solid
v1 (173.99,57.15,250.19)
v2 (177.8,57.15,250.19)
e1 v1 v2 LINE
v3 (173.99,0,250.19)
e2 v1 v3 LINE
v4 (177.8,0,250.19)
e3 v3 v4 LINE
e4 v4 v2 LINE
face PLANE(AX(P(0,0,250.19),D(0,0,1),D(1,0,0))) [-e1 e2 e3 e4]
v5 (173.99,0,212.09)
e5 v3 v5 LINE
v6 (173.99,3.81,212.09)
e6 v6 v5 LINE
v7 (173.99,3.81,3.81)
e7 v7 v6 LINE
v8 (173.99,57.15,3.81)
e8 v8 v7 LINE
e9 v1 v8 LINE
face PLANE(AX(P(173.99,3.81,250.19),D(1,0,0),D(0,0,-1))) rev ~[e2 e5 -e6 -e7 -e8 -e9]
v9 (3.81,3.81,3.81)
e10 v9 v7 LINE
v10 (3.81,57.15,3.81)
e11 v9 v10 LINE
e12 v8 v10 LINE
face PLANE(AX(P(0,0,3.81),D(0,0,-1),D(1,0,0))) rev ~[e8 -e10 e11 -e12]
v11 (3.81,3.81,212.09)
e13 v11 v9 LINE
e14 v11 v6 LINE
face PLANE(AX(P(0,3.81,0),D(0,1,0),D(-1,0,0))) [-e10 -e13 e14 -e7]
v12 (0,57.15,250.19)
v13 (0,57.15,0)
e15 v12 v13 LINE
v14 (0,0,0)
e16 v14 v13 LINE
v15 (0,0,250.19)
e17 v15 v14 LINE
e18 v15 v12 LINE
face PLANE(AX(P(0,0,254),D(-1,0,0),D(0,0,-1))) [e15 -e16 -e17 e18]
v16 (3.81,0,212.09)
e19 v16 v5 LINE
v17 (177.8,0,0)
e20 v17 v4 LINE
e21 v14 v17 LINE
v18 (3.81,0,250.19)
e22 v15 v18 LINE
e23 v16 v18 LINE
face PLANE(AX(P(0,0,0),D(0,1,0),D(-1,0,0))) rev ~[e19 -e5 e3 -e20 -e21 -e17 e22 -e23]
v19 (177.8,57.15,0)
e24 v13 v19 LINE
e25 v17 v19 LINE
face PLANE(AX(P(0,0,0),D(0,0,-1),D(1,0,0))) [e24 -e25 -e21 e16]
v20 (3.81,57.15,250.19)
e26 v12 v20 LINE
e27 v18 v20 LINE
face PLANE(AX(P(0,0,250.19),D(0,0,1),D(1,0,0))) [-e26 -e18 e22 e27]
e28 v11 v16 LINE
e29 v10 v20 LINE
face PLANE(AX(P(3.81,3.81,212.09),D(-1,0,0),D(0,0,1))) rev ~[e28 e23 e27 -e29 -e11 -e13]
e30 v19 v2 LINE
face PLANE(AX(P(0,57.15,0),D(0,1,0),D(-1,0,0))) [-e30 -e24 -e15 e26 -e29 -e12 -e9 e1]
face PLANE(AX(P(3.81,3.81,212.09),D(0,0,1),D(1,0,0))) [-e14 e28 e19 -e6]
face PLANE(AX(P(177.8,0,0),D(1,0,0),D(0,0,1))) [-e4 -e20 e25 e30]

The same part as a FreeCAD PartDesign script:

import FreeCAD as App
import Part
import Sketcher
Q = App.Units.Quantity


def faces_at(feature, points):
    """Names of the faces that lie closest to the given points."""
    faces = feature.Shape.Faces
    near = lambda p: min(range(len(faces)), key=lambda i: faces[i].distToShape(Part.Vertex(*p))[0])
    return sorted({f"Face{near(p) + 1}" for p in points})


def add_polygon(sketch, points):
    """Adds a closed chain of lines whose ends are joined by coincident constraints."""
    first, n = sketch.GeometryCount, len(points)
    for a, b in zip(points, points[1:] + points[:1]):
        sketch.addGeometry(Part.LineSegment(App.Vector(*a, 0), App.Vector(*b, 0)), False)
    for i in range(n):
        sketch.addConstraint(Sketcher.Constraint("Coincident", first + i, 2, first + (i + 1) % n, 1))

doc = App.newDocument("Part")
body = doc.addObject("PartDesign::Body", "Body")

sketch1 = body.newObject("Sketcher::SketchObject", "Sketch")
sketch1.AttachmentSupport = (doc.getObject("XZ_Plane"), [""])
sketch1.MapMode = "FlatFace"
add_polygon(sketch1, [(178, 0), (0, 0), (0, 254), (178, 254)])
sketch1.addConstraint([
    Sketcher.Constraint("Horizontal", 0),
    Sketcher.Constraint("Vertical", 1),
    Sketcher.Constraint("Horizontal", 2),
    Sketcher.Constraint("Vertical", 3),
    Sketcher.Constraint("Coincident", 0, 2, -1, 1),
    Sketcher.Constraint("DistanceX", 0, 2, 0, 1, Q("7 in")),
    Sketcher.Constraint("DistanceY", 1, 1, 1, 2, Q("10 in")),
])
pad1 = body.newObject("PartDesign::Pad", "Pad")
pad1.Profile = sketch1
pad1.Length = Q("2.25 in")
pad1.Reversed = True
doc.recompute()

thickness = body.newObject("PartDesign::Thickness", "Thickness")
thickness.Base = (pad1, faces_at(pad1, [(118.533, 57.15, 169.333)]))
thickness.Value = Q("0.15 in")
thickness.Reversed = True
thickness.Join = "Intersection"

sketch2 = body.newObject("Sketcher::SketchObject", "Sketch001")
sketch2.AttachmentSupport = (doc.getObject("XY_Plane"), [""])
sketch2.MapMode = "FlatFace"
sketch2.AttachmentOffset = App.Placement(App.Vector(0, 0, 10 * 25.4), App.Rotation())
add_polygon(sketch2, [(0, 57), (0, 0), (178, 0), (178, 57)])
sketch2.addConstraint([
    Sketcher.Constraint("Vertical", 0),
    Sketcher.Constraint("Horizontal", 1),
    Sketcher.Constraint("Vertical", 2),
    Sketcher.Constraint("Horizontal", 3),
    Sketcher.Constraint("Coincident", 0, 2, -1, 1),
    Sketcher.Constraint("DistanceX", 1, 1, 1, 2, Q("7 in")),
    Sketcher.Constraint("DistanceY", 0, 2, 0, 1, Q("2.25 in")),
])
pocket1 = body.newObject("PartDesign::Pocket", "Pocket")
pocket1.Profile = sketch2
pocket1.Length = Q("0.15 in")

sketch3 = body.newObject("Sketcher::SketchObject", "Sketch002")
sketch3.AttachmentSupport = (doc.getObject("XZ_Plane"), [""])
sketch3.MapMode = "FlatFace"
sketch3.AttachmentOffset = App.Placement(App.Vector(0, 0, -0.15 * 25.4), App.Rotation())
add_polygon(sketch3, [(4, 212), (4, 250), (174, 250), (174, 212)])
sketch3.addConstraint([
    Sketcher.Constraint("Vertical", 0),
    Sketcher.Constraint("Horizontal", 1),
    Sketcher.Constraint("Vertical", 2),
    Sketcher.Constraint("Horizontal", 3),
    Sketcher.Constraint("DistanceY", 0, 1, 0, 2, Q("1.5 in")),
    Sketcher.Constraint("DistanceX", 1, 1, 1, 2, Q("6.7 in")),
    Sketcher.Constraint("DistanceX", -1, 1, 0, 2, Q("0.15 in")),
    Sketcher.Constraint("DistanceY", -1, 1, 0, 2, Q("9.85 in")),
])
pocket2 = body.newObject("PartDesign::Pocket", "Pocket001")
pocket2.Profile = sketch3
pocket2.Type = "ThroughAll"
pocket2.Reversed = True

doc.recompute()
